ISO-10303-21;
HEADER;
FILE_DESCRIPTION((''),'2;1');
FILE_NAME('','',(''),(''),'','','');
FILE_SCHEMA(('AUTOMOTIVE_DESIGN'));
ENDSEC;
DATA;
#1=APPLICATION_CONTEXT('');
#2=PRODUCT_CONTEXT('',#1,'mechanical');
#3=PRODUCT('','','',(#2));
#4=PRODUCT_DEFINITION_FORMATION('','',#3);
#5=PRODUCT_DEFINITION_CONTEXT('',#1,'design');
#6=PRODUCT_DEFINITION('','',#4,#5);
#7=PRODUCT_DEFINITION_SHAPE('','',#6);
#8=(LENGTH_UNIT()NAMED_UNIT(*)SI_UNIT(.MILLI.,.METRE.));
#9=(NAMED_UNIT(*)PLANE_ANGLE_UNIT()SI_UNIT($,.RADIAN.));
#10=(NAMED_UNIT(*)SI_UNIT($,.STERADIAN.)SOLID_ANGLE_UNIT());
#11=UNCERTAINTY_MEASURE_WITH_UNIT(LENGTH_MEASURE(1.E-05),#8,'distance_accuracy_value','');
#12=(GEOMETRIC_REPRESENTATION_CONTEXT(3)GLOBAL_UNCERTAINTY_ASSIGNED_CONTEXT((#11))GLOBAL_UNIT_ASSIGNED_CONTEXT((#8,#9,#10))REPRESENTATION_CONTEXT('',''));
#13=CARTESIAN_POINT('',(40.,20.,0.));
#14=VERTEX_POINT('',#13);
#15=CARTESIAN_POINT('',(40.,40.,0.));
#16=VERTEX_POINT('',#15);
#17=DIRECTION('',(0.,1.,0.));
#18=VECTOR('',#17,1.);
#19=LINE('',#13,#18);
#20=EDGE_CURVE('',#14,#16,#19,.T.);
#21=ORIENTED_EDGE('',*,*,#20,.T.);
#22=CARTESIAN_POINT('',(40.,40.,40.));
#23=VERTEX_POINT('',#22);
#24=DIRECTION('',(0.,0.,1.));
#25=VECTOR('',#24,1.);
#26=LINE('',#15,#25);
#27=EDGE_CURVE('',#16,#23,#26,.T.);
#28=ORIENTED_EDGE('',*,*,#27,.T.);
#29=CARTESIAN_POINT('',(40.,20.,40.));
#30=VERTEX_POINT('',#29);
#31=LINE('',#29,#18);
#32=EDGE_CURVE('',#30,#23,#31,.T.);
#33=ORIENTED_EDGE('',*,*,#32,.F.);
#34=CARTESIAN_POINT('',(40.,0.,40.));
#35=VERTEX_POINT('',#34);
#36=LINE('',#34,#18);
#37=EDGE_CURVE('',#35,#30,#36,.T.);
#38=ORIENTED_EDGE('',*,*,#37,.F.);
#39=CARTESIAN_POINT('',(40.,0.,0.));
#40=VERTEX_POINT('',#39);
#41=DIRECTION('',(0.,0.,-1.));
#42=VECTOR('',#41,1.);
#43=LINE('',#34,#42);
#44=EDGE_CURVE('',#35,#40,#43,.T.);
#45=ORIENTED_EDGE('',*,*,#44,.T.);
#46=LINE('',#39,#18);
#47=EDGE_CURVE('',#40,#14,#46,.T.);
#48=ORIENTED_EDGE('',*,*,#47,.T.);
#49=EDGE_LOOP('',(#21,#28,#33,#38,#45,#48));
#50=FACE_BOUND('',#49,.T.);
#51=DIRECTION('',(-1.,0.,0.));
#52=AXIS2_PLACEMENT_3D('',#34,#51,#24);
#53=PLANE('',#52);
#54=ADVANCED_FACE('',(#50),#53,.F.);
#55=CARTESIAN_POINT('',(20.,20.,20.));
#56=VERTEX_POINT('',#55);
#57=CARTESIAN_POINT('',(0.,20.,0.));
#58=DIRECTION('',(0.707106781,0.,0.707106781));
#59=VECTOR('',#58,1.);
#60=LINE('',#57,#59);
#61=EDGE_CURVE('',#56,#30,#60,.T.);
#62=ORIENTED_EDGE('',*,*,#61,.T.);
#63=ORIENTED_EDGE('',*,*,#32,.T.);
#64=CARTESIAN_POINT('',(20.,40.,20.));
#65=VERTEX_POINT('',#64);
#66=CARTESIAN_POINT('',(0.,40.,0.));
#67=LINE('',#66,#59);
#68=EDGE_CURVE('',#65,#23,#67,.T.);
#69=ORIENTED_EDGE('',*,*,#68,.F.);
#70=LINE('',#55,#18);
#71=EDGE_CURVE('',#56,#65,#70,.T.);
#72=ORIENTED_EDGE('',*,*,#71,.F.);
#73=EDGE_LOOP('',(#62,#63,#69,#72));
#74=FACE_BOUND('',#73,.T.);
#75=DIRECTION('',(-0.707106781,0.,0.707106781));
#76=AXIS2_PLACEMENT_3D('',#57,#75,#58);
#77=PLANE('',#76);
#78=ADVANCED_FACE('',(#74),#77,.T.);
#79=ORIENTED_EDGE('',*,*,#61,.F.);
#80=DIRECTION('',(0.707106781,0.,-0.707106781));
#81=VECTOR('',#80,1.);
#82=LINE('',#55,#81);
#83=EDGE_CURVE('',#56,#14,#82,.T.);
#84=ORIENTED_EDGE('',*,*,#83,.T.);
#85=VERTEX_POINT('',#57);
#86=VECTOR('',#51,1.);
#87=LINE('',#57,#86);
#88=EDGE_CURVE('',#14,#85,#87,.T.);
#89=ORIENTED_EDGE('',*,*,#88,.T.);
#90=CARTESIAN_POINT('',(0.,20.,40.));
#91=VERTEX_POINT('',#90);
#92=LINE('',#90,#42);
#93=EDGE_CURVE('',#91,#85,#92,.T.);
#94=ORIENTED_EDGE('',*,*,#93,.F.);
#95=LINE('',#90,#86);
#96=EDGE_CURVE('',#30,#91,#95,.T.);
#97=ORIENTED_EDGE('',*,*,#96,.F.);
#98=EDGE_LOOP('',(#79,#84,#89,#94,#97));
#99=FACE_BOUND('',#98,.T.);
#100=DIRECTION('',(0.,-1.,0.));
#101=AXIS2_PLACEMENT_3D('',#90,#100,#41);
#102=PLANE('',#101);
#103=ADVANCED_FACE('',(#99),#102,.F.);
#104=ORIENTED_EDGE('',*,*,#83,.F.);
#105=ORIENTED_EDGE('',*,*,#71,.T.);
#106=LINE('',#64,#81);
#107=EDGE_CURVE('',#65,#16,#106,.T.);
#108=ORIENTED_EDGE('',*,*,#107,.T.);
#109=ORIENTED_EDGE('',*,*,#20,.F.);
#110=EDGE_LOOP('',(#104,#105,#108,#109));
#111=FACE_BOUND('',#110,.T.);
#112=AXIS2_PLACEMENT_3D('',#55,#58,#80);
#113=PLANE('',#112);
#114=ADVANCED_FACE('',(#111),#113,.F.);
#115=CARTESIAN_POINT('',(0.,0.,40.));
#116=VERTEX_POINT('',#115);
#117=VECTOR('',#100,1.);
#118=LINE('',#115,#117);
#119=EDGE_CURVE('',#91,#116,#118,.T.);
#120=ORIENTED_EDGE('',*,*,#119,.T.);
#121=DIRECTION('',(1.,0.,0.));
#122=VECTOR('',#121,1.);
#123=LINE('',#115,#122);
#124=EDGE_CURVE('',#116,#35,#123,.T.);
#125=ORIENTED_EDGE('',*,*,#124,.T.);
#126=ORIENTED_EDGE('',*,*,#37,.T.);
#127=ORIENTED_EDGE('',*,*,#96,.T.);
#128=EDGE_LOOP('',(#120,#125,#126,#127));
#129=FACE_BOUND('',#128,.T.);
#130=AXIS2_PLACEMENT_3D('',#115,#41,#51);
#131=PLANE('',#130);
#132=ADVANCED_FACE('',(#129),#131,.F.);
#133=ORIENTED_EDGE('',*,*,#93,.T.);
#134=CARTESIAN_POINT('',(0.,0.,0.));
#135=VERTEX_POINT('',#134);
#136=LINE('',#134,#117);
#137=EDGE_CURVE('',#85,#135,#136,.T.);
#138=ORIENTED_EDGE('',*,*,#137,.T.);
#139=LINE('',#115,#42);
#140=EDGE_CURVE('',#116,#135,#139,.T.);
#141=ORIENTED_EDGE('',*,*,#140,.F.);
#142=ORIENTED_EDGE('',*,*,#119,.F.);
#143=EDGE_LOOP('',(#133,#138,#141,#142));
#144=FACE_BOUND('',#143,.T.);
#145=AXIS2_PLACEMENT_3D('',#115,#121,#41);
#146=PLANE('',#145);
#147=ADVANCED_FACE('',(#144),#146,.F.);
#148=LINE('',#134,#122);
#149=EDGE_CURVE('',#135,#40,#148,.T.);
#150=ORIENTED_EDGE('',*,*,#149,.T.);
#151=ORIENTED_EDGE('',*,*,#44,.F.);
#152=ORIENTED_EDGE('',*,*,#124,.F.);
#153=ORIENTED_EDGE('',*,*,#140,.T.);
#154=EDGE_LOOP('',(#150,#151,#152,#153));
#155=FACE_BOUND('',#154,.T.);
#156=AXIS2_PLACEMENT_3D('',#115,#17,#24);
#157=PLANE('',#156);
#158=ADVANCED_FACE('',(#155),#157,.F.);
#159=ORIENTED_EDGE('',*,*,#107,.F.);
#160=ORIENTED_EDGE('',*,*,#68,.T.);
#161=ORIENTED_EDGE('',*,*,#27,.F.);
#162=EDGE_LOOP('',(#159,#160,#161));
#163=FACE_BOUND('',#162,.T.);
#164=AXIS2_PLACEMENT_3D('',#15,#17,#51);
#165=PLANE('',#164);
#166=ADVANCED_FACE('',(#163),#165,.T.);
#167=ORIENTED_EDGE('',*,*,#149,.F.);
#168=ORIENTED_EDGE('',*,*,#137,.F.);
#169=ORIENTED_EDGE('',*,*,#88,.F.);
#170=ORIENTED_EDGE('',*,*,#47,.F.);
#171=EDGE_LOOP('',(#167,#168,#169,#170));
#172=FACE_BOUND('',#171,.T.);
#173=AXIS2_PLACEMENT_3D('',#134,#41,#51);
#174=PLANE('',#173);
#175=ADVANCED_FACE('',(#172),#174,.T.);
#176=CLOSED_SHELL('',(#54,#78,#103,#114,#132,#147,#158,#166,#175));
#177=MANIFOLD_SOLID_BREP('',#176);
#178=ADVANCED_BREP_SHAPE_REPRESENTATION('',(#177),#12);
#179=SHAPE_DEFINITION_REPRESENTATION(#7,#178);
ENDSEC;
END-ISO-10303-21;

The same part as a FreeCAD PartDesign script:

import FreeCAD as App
import Part
import Sketcher

V = App.Vector

doc = App.newDocument("Part")
body = doc.addObject("PartDesign::Body", "Body")

sketch1 = body.newObject("Sketcher::SketchObject", "Sketch")
sketch1.AttachmentSupport = (doc.getObject("XY_Plane"), [""])
sketch1.MapMode = "FlatFace"
sketch1.addGeometry(Part.LineSegment(V(0, 20, 0), V(0, 0, 0)), False)
sketch1.addGeometry(Part.LineSegment(V(0, 0, 0), V(40, 0, 0)), False)
sketch1.addGeometry(Part.LineSegment(V(40, 0, 0), V(40, 20, 0)), False)
sketch1.addGeometry(Part.LineSegment(V(40, 20, 0), V(0, 20, 0)), False)
sketch1.addConstraint(Sketcher.Constraint("Coincident", 0, 2, 1, 1))
sketch1.addConstraint(Sketcher.Constraint("Coincident", 1, 2, 2, 1))
sketch1.addConstraint(Sketcher.Constraint("Coincident", 2, 2, 3, 1))
sketch1.addConstraint(Sketcher.Constraint("Coincident", 3, 2, 0, 1))
sketch1.addConstraint(Sketcher.Constraint("Vertical", 0))
sketch1.addConstraint(Sketcher.Constraint("Horizontal", 1))
sketch1.addConstraint(Sketcher.Constraint("Vertical", 2))
sketch1.addConstraint(Sketcher.Constraint("Horizontal", 3))
sketch1.addConstraint(Sketcher.Constraint("Coincident", 0, 2, -1, 1))
sketch1.addConstraint(Sketcher.Constraint("DistanceX", 1, 1, 1, 2, 40.0))
sketch1.addConstraint(Sketcher.Constraint("DistanceY", 0, 2, 0, 1, 20.0))
pad1 = body.newObject("PartDesign::Pad", "Pad")
pad1.Profile = sketch1
pad1.Length = 40

sketch2 = body.newObject("Sketcher::SketchObject", "Sketch001")
sketch2.AttachmentSupport = (doc.getObject("XY_Plane"), [""])
sketch2.MapMode = "FlatFace"
sketch2.AttachmentOffset = App.Placement(V(0, 0, 40), App.Rotation())
sketch2.addGeometry(Part.LineSegment(V(20, 40, 0), V(20, 20, 0)), False)
sketch2.addGeometry(Part.LineSegment(V(20, 20, 0), V(40, 20, 0)), False)
sketch2.addGeometry(Part.LineSegment(V(40, 20, 0), V(40, 40, 0)), False)
sketch2.addGeometry(Part.LineSegment(V(40, 40, 0), V(20, 40, 0)), False)
sketch2.addConstraint(Sketcher.Constraint("Coincident", 0, 2, 1, 1))
sketch2.addConstraint(Sketcher.Constraint("Coincident", 1, 2, 2, 1))
sketch2.addConstraint(Sketcher.Constraint("Coincident", 2, 2, 3, 1))
sketch2.addConstraint(Sketcher.Constraint("Coincident", 3, 2, 0, 1))
sketch2.addConstraint(Sketcher.Constraint("Vertical", 0))
sketch2.addConstraint(Sketcher.Constraint("Horizontal", 1))
sketch2.addConstraint(Sketcher.Constraint("Vertical", 2))
sketch2.addConstraint(Sketcher.Constraint("Horizontal", 3))
sketch2.addConstraint(Sketcher.Constraint("Equal", 3, 0))
sketch2.addConstraint(Sketcher.Constraint("DistanceX", 1, 1, 1, 2, 20.0))
sketch2.addConstraint(Sketcher.Constraint("DistanceX", -1, 1, 0, 2, 20.0))
sketch2.addConstraint(Sketcher.Constraint("DistanceY", -1, 1, 0, 2, 20.0))
pad2 = body.newObject("PartDesign::Pad", "Pad001")
pad2.Profile = sketch2
pad2.Length = 40
pad2.Reversed = True

sketch3 = body.newObject("Sketcher::SketchObject", "Sketch002")
sketch3.AttachmentSupport = (doc.getObject("XZ_Plane"), [""])
sketch3.MapMode = "FlatFace"
sketch3.AttachmentOffset = App.Placement(V(0, 0, -40), App.Rotation())
sketch3.addGeometry(Part.LineSegment(V(20, 0, 0), V(20, 20, 0)), False)
sketch3.addGeometry(Part.LineSegment(V(20, 20, 0), V(40, 0, 0)), False)
sketch3.addGeometry(Part.LineSegment(V(40, 0, 0), V(20, 0, 0)), False)
sketch3.addGeometry(Part.LineSegment(V(40, 40, 0), V(20, 20, 0)), False)
sketch3.addGeometry(Part.LineSegment(V(20, 20, 0), V(20, 40, 0)), False)
sketch3.addGeometry(Part.LineSegment(V(20, 40, 0), V(40, 40, 0)), False)
sketch3.addConstraint(Sketcher.Constraint("Coincident", 0, 2, 1, 1))
sketch3.addConstraint(Sketcher.Constraint("Coincident", 1, 2, 2, 1))
sketch3.addConstraint(Sketcher.Constraint("Coincident", 2, 2, 0, 1))
sketch3.addConstraint(Sketcher.Constraint("Coincident", 3, 2, 4, 1))
sketch3.addConstraint(Sketcher.Constraint("Coincident", 4, 2, 5, 1))
sketch3.addConstraint(Sketcher.Constraint("Coincident", 5, 2, 3, 1))
sketch3.addConstraint(Sketcher.Constraint("Vertical", 0))
sketch3.addConstraint(Sketcher.Constraint("Horizontal", 2))
sketch3.addConstraint(Sketcher.Constraint("Vertical", 4))
sketch3.addConstraint(Sketcher.Constraint("Horizontal", 5))
sketch3.addConstraint(Sketcher.Constraint("Coincident", 3, 2, 0, 2))
sketch3.addConstraint(Sketcher.Constraint("PointOnObject", 1, 2, -1))
sketch3.addConstraint(Sketcher.Constraint("Perpendicular", 1, 3))
sketch3.addConstraint(Sketcher.Constraint("Vertical", 1, 2, 5, 2))
sketch3.addConstraint(Sketcher.Constraint("Equal", 5, 0))
sketch3.addConstraint(Sketcher.Constraint("DistanceX", 2, 2, 2, 1, 20.0))
sketch3.addConstraint(Sketcher.Constraint("DistanceX", -1, 1, 0, 2, 20.0))
pocket1 = body.newObject("PartDesign::Pocket", "Pocket")
pocket1.Profile = sketch3
pocket1.Length = 20
pocket1.Reversed = True

doc.recompute()
